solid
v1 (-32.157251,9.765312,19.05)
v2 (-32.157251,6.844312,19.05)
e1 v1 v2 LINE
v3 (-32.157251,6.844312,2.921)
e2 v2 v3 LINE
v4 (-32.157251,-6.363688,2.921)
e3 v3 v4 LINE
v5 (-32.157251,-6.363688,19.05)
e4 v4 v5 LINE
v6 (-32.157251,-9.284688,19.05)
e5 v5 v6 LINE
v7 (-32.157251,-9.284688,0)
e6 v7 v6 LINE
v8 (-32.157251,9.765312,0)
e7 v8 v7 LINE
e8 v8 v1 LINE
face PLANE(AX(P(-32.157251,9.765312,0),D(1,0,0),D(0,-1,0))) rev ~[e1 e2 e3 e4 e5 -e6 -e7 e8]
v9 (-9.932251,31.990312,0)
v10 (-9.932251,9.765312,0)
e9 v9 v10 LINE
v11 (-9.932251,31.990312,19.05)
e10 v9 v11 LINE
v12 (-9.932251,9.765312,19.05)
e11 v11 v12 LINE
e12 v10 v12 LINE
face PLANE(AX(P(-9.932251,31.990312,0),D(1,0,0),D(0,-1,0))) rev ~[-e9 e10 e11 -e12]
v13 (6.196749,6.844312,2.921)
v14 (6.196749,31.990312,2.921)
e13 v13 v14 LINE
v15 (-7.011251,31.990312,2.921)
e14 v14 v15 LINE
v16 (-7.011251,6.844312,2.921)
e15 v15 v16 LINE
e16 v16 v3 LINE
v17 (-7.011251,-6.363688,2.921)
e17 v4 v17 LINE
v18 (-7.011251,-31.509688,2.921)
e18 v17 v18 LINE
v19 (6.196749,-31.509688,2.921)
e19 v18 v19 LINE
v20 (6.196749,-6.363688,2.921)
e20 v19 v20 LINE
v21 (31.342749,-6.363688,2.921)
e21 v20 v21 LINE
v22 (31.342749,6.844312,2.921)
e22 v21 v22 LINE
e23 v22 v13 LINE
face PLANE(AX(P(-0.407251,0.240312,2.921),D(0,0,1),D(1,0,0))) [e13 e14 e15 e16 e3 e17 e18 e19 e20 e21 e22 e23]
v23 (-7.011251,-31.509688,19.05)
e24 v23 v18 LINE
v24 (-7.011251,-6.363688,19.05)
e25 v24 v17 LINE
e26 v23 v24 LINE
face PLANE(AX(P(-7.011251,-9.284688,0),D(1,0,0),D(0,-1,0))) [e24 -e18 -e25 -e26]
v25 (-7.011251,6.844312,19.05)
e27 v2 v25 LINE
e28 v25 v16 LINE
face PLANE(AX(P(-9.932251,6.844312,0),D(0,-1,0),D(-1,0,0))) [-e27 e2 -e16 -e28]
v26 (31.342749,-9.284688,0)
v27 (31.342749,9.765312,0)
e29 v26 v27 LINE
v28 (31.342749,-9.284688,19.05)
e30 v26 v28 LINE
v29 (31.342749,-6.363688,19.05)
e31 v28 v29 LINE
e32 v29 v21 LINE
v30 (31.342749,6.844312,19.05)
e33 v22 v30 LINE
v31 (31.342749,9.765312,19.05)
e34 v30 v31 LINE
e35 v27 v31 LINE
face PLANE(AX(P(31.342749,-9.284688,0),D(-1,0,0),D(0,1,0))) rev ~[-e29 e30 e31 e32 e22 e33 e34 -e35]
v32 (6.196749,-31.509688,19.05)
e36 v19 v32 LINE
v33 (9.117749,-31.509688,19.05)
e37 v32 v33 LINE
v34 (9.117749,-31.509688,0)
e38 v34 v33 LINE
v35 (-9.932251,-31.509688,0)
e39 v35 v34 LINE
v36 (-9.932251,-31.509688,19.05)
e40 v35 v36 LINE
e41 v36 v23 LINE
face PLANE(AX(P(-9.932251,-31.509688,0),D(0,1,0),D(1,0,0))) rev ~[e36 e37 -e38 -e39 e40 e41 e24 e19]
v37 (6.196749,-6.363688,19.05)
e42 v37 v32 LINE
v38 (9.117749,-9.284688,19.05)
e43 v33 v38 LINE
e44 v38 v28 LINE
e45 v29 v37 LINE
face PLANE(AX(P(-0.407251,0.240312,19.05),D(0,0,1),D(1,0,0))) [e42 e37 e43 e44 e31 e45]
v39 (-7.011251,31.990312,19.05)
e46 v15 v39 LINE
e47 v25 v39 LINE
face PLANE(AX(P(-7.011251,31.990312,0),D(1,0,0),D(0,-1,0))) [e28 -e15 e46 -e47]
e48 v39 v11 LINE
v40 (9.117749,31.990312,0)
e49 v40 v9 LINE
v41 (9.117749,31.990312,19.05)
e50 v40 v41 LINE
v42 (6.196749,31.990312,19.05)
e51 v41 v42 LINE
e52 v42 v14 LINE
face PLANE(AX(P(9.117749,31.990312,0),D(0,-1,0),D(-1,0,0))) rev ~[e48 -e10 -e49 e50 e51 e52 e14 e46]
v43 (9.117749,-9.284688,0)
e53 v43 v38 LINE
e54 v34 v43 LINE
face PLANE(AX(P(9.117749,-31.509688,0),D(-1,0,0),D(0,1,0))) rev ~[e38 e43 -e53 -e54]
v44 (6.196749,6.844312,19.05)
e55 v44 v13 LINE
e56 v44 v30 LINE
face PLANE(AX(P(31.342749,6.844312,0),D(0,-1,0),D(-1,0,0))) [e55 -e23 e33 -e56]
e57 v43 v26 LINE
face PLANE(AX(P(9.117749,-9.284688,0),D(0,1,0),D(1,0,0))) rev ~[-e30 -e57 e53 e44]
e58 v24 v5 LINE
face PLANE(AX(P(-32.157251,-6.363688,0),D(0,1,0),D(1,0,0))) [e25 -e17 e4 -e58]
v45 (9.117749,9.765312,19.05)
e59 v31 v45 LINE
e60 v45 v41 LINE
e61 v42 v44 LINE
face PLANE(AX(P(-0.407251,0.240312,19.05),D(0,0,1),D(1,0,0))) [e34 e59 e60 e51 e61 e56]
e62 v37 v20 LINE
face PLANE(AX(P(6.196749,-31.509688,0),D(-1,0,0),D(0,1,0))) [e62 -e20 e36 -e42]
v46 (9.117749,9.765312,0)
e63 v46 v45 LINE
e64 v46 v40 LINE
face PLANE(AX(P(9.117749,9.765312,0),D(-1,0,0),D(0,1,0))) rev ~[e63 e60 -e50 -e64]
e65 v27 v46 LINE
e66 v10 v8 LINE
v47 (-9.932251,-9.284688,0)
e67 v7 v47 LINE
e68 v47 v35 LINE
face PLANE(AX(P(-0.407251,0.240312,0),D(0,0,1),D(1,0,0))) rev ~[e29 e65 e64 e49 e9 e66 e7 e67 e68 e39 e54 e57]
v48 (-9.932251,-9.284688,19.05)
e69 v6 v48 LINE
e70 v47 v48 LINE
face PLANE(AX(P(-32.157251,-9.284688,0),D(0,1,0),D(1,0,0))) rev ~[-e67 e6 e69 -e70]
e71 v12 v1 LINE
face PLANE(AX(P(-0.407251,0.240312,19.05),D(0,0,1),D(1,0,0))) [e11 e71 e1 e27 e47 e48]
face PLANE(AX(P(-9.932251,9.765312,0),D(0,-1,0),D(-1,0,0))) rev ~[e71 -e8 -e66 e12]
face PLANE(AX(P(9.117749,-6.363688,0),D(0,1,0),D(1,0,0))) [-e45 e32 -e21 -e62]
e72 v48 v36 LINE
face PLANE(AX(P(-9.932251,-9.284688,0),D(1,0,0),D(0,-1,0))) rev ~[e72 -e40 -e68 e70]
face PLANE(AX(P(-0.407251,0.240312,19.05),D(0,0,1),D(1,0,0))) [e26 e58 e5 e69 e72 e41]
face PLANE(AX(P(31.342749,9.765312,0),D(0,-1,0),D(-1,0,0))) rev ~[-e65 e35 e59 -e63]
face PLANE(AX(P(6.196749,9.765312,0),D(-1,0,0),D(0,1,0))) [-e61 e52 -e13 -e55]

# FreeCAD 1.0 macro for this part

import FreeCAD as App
import Part
import Sketcher

V = App.Vector
Q = App.Units.Quantity


def faces_at(feature, points):
    """Names of the faces that lie closest to the given points."""
    faces = feature.Shape.Faces
    near = lambda p: min(range(len(faces)), key=lambda i: faces[i].distToShape(Part.Vertex(*p))[0])
    return sorted({f"Face{near(p) + 1}" for p in points})


def add_polygon(sketch, points):
    """Adds a closed chain of lines whose ends are joined by coincident constraints."""
    first, n = sketch.GeometryCount, len(points)
    for a, b in zip(points, points[1:] + points[:1]):
        sketch.addGeometry(Part.LineSegment(App.Vector(*a, 0), App.Vector(*b, 0)), False)
    for i in range(n):
        sketch.addConstraint(Sketcher.Constraint("Coincident", first + i, 2, first + (i + 1) % n, 1))

doc = App.newDocument("Part")
body = doc.addObject("PartDesign::Body", "Body")

# Sketch on XY plane
sketch1 = body.newObject("Sketcher::SketchObject", "Sketch")
sketch1.AttachmentSupport = (doc.getObject("XY_Plane"), [""])
sketch1.MapMode = "FlatFace"
add_polygon(sketch1, [(9.117749, 31.990312), (-9.932251, 31.990312), (-9.932251, 9.765312), (-32.157251, 9.765312), (-32.157251, -9.284688), (-9.932251, -9.284688), (-9.932251, -31.509688), (9.117749, -31.509688), (9.117749, -9.284688), (31.342749, -9.284688), (31.342749, 9.765312), (9.117749, 9.765312)])  # lines 0-11
sketch1.addConstraint([
    Sketcher.Constraint("Horizontal", 0),
    Sketcher.Constraint("Vertical", 1),
    Sketcher.Constraint("Horizontal", 2),
    Sketcher.Constraint("Vertical", 3),
    Sketcher.Constraint("Horizontal", 4),
    Sketcher.Constraint("Vertical", 5),
    Sketcher.Constraint("Horizontal", 6),
    Sketcher.Constraint("Vertical", 7),
    Sketcher.Constraint("Horizontal", 8),
    Sketcher.Constraint("Vertical", 9),
    Sketcher.Constraint("Horizontal", 10),
    Sketcher.Constraint("Vertical", 11),
    Sketcher.Constraint("Horizontal", 4, 2, 7, 2),
    Sketcher.Constraint("Horizontal", 2, 2, 9, 2),
    Sketcher.Constraint("Vertical", 1, 2, 4, 2),
    Sketcher.Constraint("Vertical", 7, 2, 10, 2),
    Sketcher.Constraint("Equal", 4, 8),
    Sketcher.Constraint("Equal", 10, 1),
    Sketcher.Constraint("Equal", 6, 3),
    Sketcher.Constraint("Equal", 1, 5),
    Sketcher.Constraint("DistanceX", 0, 2, 0, 1, Q("0.75 in")),
    Sketcher.Constraint("DistanceY", 5, 2, 0, 2, Q("2.5 in")),
    Sketcher.Constraint("DistanceX", 0, 2, -1, 1, Q("9.932251 mm")),
    Sketcher.Constraint("DistanceY", -1, 1, 0, 2, Q("31.990312 mm")),
])
pad1 = body.newObject("PartDesign::Pad", "Pad")
pad1.Profile = sketch1
pad1.Length = Q("0.75 in")
doc.recompute()

thickness = body.newObject("PartDesign::Thickness", "Thickness")
thickness.Base = (pad1, faces_at(pad1, [
    (-0.407, 0.24, 19.05),
    (-0.407, -31.51, 9.525),
    (31.343, 0.24, 9.525),
    (-0.407, 31.99, 9.525),
    (-32.157, 0.24, 9.525),
]))
thickness.Value = Q("0.115 in")
thickness.Reversed = True
thickness.Join = "Intersection"

doc.recompute()
